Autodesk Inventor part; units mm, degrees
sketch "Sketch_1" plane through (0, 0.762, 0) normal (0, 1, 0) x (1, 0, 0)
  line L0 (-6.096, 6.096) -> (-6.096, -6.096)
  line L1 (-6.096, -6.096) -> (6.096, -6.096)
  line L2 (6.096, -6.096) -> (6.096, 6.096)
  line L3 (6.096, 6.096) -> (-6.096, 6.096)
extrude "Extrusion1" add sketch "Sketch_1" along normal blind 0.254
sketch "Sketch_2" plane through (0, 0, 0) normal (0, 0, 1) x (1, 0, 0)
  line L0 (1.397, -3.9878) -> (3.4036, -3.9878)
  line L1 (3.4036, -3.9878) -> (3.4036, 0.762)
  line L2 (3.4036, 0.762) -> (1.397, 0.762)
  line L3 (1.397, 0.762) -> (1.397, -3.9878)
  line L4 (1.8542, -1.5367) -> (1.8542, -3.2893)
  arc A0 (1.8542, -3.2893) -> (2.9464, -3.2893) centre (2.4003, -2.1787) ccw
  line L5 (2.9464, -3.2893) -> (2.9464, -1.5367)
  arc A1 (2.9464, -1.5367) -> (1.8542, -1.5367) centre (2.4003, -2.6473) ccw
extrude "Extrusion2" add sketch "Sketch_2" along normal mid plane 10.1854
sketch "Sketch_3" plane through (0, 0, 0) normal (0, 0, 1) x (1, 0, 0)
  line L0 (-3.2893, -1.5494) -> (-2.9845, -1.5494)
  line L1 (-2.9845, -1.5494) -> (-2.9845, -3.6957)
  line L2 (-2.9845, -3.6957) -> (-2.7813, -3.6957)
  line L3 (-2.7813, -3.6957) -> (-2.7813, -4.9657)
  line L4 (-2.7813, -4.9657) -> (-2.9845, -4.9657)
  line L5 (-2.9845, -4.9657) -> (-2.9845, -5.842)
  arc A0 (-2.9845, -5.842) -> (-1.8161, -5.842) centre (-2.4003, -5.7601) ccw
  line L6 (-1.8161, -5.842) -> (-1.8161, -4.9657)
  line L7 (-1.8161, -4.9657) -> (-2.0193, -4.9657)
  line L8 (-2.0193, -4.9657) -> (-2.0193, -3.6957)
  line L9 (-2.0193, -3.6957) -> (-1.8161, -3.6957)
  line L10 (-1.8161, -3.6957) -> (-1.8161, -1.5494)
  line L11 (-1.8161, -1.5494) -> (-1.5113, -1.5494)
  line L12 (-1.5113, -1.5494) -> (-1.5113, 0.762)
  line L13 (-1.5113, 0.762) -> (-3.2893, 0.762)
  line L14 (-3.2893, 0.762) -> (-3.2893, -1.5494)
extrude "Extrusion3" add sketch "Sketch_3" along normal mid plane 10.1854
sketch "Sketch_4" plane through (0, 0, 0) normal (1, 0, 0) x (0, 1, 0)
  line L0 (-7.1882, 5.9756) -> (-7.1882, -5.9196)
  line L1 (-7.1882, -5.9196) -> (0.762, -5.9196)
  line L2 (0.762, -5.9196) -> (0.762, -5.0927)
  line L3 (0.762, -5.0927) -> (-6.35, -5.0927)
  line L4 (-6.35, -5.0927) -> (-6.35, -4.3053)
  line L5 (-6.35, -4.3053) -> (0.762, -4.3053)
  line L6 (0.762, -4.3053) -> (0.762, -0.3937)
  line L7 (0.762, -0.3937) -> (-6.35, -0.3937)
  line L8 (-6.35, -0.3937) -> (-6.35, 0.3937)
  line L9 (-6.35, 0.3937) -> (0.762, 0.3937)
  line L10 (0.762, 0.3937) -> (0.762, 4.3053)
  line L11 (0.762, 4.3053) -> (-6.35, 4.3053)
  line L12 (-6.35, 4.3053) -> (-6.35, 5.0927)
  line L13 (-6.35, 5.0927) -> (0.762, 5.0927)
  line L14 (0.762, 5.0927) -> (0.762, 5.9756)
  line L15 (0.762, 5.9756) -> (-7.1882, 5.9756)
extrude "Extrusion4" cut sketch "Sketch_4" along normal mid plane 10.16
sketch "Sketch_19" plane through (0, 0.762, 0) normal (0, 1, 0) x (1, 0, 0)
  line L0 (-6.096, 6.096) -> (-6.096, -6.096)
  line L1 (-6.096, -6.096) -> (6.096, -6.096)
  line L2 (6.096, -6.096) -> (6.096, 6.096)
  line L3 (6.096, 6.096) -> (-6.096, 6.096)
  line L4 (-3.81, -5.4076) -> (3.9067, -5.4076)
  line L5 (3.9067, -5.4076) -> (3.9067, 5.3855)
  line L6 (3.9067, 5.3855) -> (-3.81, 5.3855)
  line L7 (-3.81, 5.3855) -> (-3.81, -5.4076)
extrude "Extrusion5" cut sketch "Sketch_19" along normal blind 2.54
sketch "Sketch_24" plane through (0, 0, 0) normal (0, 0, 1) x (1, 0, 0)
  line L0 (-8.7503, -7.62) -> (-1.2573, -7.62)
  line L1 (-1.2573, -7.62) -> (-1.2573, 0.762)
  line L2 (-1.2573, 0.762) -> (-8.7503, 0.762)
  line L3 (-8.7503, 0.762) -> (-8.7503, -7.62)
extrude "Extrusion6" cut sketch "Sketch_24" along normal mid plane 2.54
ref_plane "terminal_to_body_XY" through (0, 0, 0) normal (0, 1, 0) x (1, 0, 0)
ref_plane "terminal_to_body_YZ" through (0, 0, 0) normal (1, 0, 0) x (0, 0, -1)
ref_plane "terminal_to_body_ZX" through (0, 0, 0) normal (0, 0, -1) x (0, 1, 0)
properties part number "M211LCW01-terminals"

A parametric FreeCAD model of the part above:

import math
import FreeCAD as App
import Part
import Sketcher

V = App.Vector
Q = App.Units.Quantity


def add_polygon(sketch, points):
    """Adds a closed chain of lines whose ends are joined by coincident constraints."""
    first, n = sketch.GeometryCount, len(points)
    for a, b in zip(points, points[1:] + points[:1]):
        sketch.addGeometry(Part.LineSegment(App.Vector(*a, 0), App.Vector(*b, 0)), False)
    for i in range(n):
        sketch.addConstraint(Sketcher.Constraint("Coincident", first + i, 2, first + (i + 1) % n, 1))

doc = App.newDocument("Part")
body = doc.addObject("PartDesign::Body", "Body")

# Sketch on XZ plane
sketch1 = doc.addObject("Sketcher::SketchObject", "Sketch")
body.addObject(sketch1)
sketch1.AttachmentSupport = (doc.XZ_Plane, [""])
sketch1.MapMode = "FlatFace"
sketch1.AttachmentOffset = App.Placement(V(0, 0, -0.03 * 25.4), App.Rotation())
add_polygon(sketch1, [(6.096, -6.096), (-6.096, -6.096), (-6.096, 6.096), (6.096, 6.096)])  # lines 0-3
sketch1.addConstraint([
    Sketcher.Constraint("Horizontal", 0),
    Sketcher.Constraint("Vertical", 1),
    Sketcher.Constraint("Horizontal", 2),
    Sketcher.Constraint("Vertical", 3),
    Sketcher.Constraint("Symmetric", 0, 2, 2, 2, -1, 1),
    Sketcher.Constraint("Equal", 2, 1),
    Sketcher.Constraint("DistanceX", 0, 2, 0, 1, Q("0.48 in")),
])
pad1 = doc.addObject("PartDesign::Pad", "Pad")
body.addObject(pad1)
pad1.Profile = sketch1
pad1.Length = Q("0.01 in")
pad1.Reversed = True

# Sketch on XY plane
sketch2 = doc.addObject("Sketcher::SketchObject", "Sketch001")
body.addObject(sketch2)
sketch2.AttachmentSupport = (doc.XY_Plane, [""])
sketch2.MapMode = "FlatFace"
add_polygon(sketch2, [(1.397, 0.762), (1.397, -3.9878), (3.4036, -3.9878), (3.4036, 0.762)])  # lines 0-3
sketch2.addGeometry(Part.LineSegment(V(1.8542, -3.2893, 0), V(1.8542, -1.5367, 0)), False)  # 4
sketch2.addGeometry(Part.ArcOfCircle(Part.Circle(V(2.4003, -2.6473, 0), V(0, 0, 1), 1.237602), math.radians(63.815907), math.radians(116.184093)), False)  # 5
sketch2.addGeometry(Part.LineSegment(V(2.9464, -1.5367, 0), V(2.9464, -3.2893, 0)), False)  # 6
sketch2.addGeometry(Part.ArcOfCircle(Part.Circle(V(2.4003, -2.1787, 0), V(0, 0, 1), 1.237602), math.radians(-116.184093), math.radians(-63.815907)), False)  # 7
sketch2.addConstraint([
    Sketcher.Constraint("Coincident", 4, 2, 5, 2),
    Sketcher.Constraint("Coincident", 5, 1, 6, 1),
    Sketcher.Constraint("Coincident", 6, 2, 7, 2),
    Sketcher.Constraint("Coincident", 7, 1, 4, 1),
    Sketcher.Constraint("Vertical", 0),
    Sketcher.Constraint("Horizontal", 1),
    Sketcher.Constraint("Vertical", 2),
    Sketcher.Constraint("Horizontal", 3),
    Sketcher.Constraint("Vertical", 4),
    Sketcher.Constraint("Vertical", 6),
    Sketcher.Constraint("Equal", 5, 7),
    Sketcher.Constraint("Horizontal", 4, 2, 5, 1),
    Sketcher.Constraint("Horizontal", 6, 2, 7, 1),
    Sketcher.Constraint("DistanceX", 1, 1, 1, 2, Q("0.079 in")),
    Sketcher.Constraint("DistanceY", 0, 2, 0, 1, Q("0.187 in")),
    Sketcher.Constraint("DistanceY", 4, 1, 4, 2, Q("0.069 in")),
    Sketcher.Constraint("DistanceY", -1, 1, 2, 2, Q("0.03 in")),
    Sketcher.Constraint("Radius", 5, Q("1.2376 mm")),
    Sketcher.Constraint("DistanceX", -1, 1, 0, 2, Q("0.055 in")),
    Sketcher.Constraint("DistanceX", -1, 1, 4, 2, Q("0.073 in")),
    Sketcher.Constraint("DistanceX", -1, 1, 5, 1, Q("0.116 in")),
    Sketcher.Constraint("DistanceY", 4, 2, -1, 1, Q("0.0605 in")),
])
pad2 = doc.addObject("PartDesign::Pad", "Pad001")
body.addObject(pad2)
pad2.Profile = sketch2
pad2.Length = Q("0.401 in")
pad2.Midplane = True

# Sketch on XY plane
sketch3 = doc.addObject("Sketcher::SketchObject", "Sketch002")
body.addObject(sketch3)
sketch3.AttachmentSupport = (doc.XY_Plane, [""])
sketch3.MapMode = "FlatFace"
sketch3.addGeometry([
    Part.LineSegment(V(-3.2893, 0.762, 0), V(-3.2893, -1.5494, 0)),  # 0
    Part.LineSegment(V(-3.2893, -1.5494, 0), V(-2.9845, -1.5494, 0)),  # 1
    Part.LineSegment(V(-2.9845, -1.5494, 0), V(-2.9845, -3.6957, 0)),  # 2
    Part.LineSegment(V(-2.9845, -3.6957, 0), V(-2.7813, -3.6957, 0)),  # 3
    Part.LineSegment(V(-2.7813, -3.6957, 0), V(-2.7813, -4.9657, 0)),  # 4
    Part.LineSegment(V(-2.7813, -4.9657, 0), V(-2.9845, -4.9657, 0)),  # 5
    Part.LineSegment(V(-2.9845, -4.9657, 0), V(-2.9845, -5.842, 0)),  # 6
    Part.ArcOfCircle(Part.Circle(V(-2.4003, -5.7601, 0), V(0, 0, 1), 0.589913), math.radians(-172.019617), math.radians(-7.980383)),  # 7
    Part.LineSegment(V(-1.8161, -5.842, 0), V(-1.8161, -4.9657, 0)),  # 8
    Part.LineSegment(V(-1.8161, -4.9657, 0), V(-2.0193, -4.9657, 0)),  # 9
    Part.LineSegment(V(-2.0193, -4.9657, 0), V(-2.0193, -3.6957, 0)),  # 10
    Part.LineSegment(V(-2.0193, -3.6957, 0), V(-1.8161, -3.6957, 0)),  # 11
    Part.LineSegment(V(-1.8161, -3.6957, 0), V(-1.8161, -1.5494, 0)),  # 12
    Part.LineSegment(V(-1.8161, -1.5494, 0), V(-1.5113, -1.5494, 0)),  # 13
    Part.LineSegment(V(-1.5113, -1.5494, 0), V(-1.5113, 0.762, 0)),  # 14
    Part.LineSegment(V(-1.5113, 0.762, 0), V(-3.2893, 0.762, 0)),  # 15
], False)
sketch3.addConstraint([
    Sketcher.Constraint("Coincident", 0, 2, 1, 1),
    Sketcher.Constraint("Coincident", 1, 2, 2, 1),
    Sketcher.Constraint("Coincident", 2, 2, 3, 1),
    Sketcher.Constraint("Coincident", 3, 2, 4, 1),
    Sketcher.Constraint("Coincident", 4, 2, 5, 1),
    Sketcher.Constraint("Coincident", 5, 2, 6, 1),
    Sketcher.Constraint("Coincident", 6, 2, 7, 1),
    Sketcher.Constraint("Coincident", 7, 2, 8, 1),
    Sketcher.Constraint("Coincident", 8, 2, 9, 1),
    Sketcher.Constraint("Coincident", 9, 2, 10, 1),
    Sketcher.Constraint("Coincident", 10, 2, 11, 1),
    Sketcher.Constraint("Coincident", 11, 2, 12, 1),
    Sketcher.Constraint("Coincident", 12, 2, 13, 1),
    Sketcher.Constraint("Coincident", 13, 2, 14, 1),
    Sketcher.Constraint("Coincident", 14, 2, 15, 1),
    Sketcher.Constraint("Coincident", 15, 2, 0, 1),
    Sketcher.Constraint("Vertical", 0),
    Sketcher.Constraint("Horizontal", 1),
    Sketcher.Constraint("Vertical", 2),
    Sketcher.Constraint("Horizontal", 3),
    Sketcher.Constraint("Vertical", 4),
    Sketcher.Constraint("Horizontal", 5),
    Sketcher.Constraint("Vertical", 6),
    Sketcher.Constraint("Vertical", 8),
    Sketcher.Constraint("Horizontal", 9),
    Sketcher.Constraint("Vertical", 10),
    Sketcher.Constraint("Horizontal", 11),
    Sketcher.Constraint("Vertical", 12),
    Sketcher.Constraint("Horizontal", 13),
    Sketcher.Constraint("Vertical", 14),
    Sketcher.Constraint("Horizontal", 15),
    Sketcher.Constraint("Horizontal", 6, 2, 7, 2),
    Sketcher.Constraint("Horizontal", 5, 2, 8, 2),
    Sketcher.Constraint("Horizontal", 3, 2, 10, 2),
    Sketcher.Constraint("Horizontal", 1, 2, 12, 2),
    Sketcher.Constraint("Vertical", 2, 2, 5, 2),
    Sketcher.Constraint("Vertical", 8, 2, 11, 2),
    Sketcher.Constraint("Equal", 5, 9),
    Sketcher.Constraint("Equal", 1, 13),
    Sketcher.Constraint("DistanceX", 15, 2, 15, 1, Q("0.07 in")),
    Sketcher.Constraint("DistanceY", 4, 2, 4, 1, Q("0.05 in")),
    Sketcher.Constraint("DistanceX", 1, 1, 1, 2, Q("0.012 in")),
    Sketcher.Constraint("DistanceX", 3, 1, 3, 2, Q("0.008 in")),
    Sketcher.Constraint("DistanceY", 0, 2, 0, 1, Q("0.091 in")),
    Sketcher.Constraint("DistanceY", 6, 2, -1, 1, Q("0.23 in")),
    Sketcher.Constraint("DistanceY", -1, 1, 14, 2, Q("0.03 in")),
    Sketcher.Constraint("Radius", 7, Q("0.59 mm")),
    Sketcher.Constraint("DistanceY", 2, 2, 2, 1, Q("0.0845 in")),
    Sketcher.Constraint("DistanceX", 7, 3, -1, 1, Q("0.0945 in")),
])
pad3 = doc.addObject("PartDesign::Pad", "Pad002")
body.addObject(pad3)
pad3.Profile = sketch3
pad3.Length = Q("0.401 in")
pad3.Midplane = True

# Sketch on YZ plane
sketch4 = doc.addObject("Sketcher::SketchObject", "Sketch003")
body.addObject(sketch4)
sketch4.AttachmentSupport = (doc.YZ_Plane, [""])
sketch4.MapMode = "FlatFace"
add_polygon(sketch4, [(0.762, 5.9756), (-7.1882, 5.9756), (-7.1882, -5.9196), (0.762, -5.9196), (0.762, -5.0927), (-6.35, -5.0927), (-6.35, -4.3053), (0.762, -4.3053), (0.762, -0.3937), (-6.35, -0.3937), (-6.35, 0.3937), (0.762, 0.3937), (0.762, 4.3053), (-6.35, 4.3053), (-6.35, 5.0927), (0.762, 5.0927)])  # lines 0-15
sketch4.addConstraint([
    Sketcher.Constraint("Horizontal", 0),
    Sketcher.Constraint("Vertical", 1),
    Sketcher.Constraint("Horizontal", 2),
    Sketcher.Constraint("Vertical", 3),
    Sketcher.Constraint("Horizontal", 4),
    Sketcher.Constraint("Vertical", 5),
    Sketcher.Constraint("Horizontal", 6),
    Sketcher.Constraint("Vertical", 7),
    Sketcher.Constraint("Horizontal", 8),
    Sketcher.Constraint("Vertical", 9),
    Sketcher.Constraint("Horizontal", 10),
    Sketcher.Constraint("Vertical", 11),
    Sketcher.Constraint("Horizontal", 12),
    Sketcher.Constraint("Vertical", 13),
    Sketcher.Constraint("Horizontal", 14),
    Sketcher.Constraint("Vertical", 15),
    Sketcher.Constraint("Symmetric", 7, 2, 10, 2, -1),
    Sketcher.Constraint("Symmetric", 5, 2, 12, 2, -1),
    Sketcher.Constraint("Symmetric", 3, 2, 14, 2, -1),
    Sketcher.Constraint("Vertical", 3, 2, 6, 2),
    Sketcher.Constraint("Vertical", 5, 2, 8, 2),
    Sketcher.Constraint("Equal", 5, 9),
    Sketcher.Constraint("DistanceX", 4, 2, 4, 1, Q("0.28 in")),
    Sketcher.Constraint("DistanceX", 0, 2, 0, 1, Q("0.313 in")),
    Sketcher.Constraint("DistanceY", 5, 1, 5, 2, Q("0.031 in")),
    Sketcher.Constraint("DistanceY", 7, 1, 7, 2, Q("0.154 in")),
    Sketcher.Constraint("DistanceX", -1, 1, 2, 2, Q("0.03 in")),
    Sketcher.Constraint("DistanceY", 1, 2, 1, 1, Q("11.8952 mm")),
    Sketcher.Constraint("DistanceY", 3, 1, 3, 2, Q("0.827 mm")),
])
pocket1 = doc.addObject("PartDesign::Pocket", "Pocket")
body.addObject(pocket1)
pocket1.Profile = sketch4
pocket1.Length = Q("0.4 in")
pocket1.Midplane = True

# Sketch on XZ plane
sketch5 = doc.addObject("Sketcher::SketchObject", "Sketch004")
body.addObject(sketch5)
sketch5.AttachmentSupport = (doc.XZ_Plane, [""])
sketch5.MapMode = "FlatFace"
sketch5.AttachmentOffset = App.Placement(V(0, 0, -0.03 * 25.4), App.Rotation())
add_polygon(sketch5, [(6.096, -6.096), (-6.096, -6.096), (-6.096, 6.096), (6.096, 6.096)])  # lines 0-3
add_polygon(sketch5, [(3.9067, 5.4076), (-3.81, 5.4076), (-3.81, -5.3855), (3.9067, -5.3855)])  # lines 4-7
sketch5.addConstraint([
    Sketcher.Constraint("Horizontal", 0),
    Sketcher.Constraint("Vertical", 1),
    Sketcher.Constraint("Horizontal", 2),
    Sketcher.Constraint("Vertical", 3),
    Sketcher.Constraint("Horizontal", 4),
    Sketcher.Constraint("Vertical", 5),
    Sketcher.Constraint("Horizontal", 6),
    Sketcher.Constraint("Vertical", 7),
    Sketcher.Constraint("Symmetric", 0, 2, 2, 2, -1, 1),
    Sketcher.Constraint("Equal", 2, 1),
    Sketcher.Constraint("DistanceX", 0, 2, 0, 1, Q("0.48 in")),
    Sketcher.Constraint("DistanceX", 4, 2, -1, 1, Q("0.15 in")),
    Sketcher.Constraint("DistanceX", 4, 2, 4, 1, Q("0.3038 in")),
    Sketcher.Constraint("DistanceY", 5, 2, 5, 1, Q("10.793 mm")),
    Sketcher.Constraint("DistanceY", -1, 1, 4, 2, Q("0.2129 in")),
])
pocket2 = doc.addObject("PartDesign::Pocket", "Pocket001")
body.addObject(pocket2)
pocket2.Profile = sketch5
pocket2.Length = Q("0.1 in")

# Sketch on XY plane
sketch6 = doc.addObject("Sketcher::SketchObject", "Sketch005")
body.addObject(sketch6)
sketch6.AttachmentSupport = (doc.XY_Plane, [""])
sketch6.MapMode = "FlatFace"
add_polygon(sketch6, [(-8.7503, 0.762), (-8.7503, -7.62), (-1.2573, -7.62), (-1.2573, 0.762)])  # lines 0-3
sketch6.addConstraint([
    Sketcher.Constraint("Vertical", 0),
    Sketcher.Constraint("Horizontal", 1),
    Sketcher.Constraint("Vertical", 2),
    Sketcher.Constraint("Horizontal", 3),
    Sketcher.Constraint("DistanceY", 0, 2, 0, 1, Q("0.33 in")),
    Sketcher.Constraint("DistanceY", 0, 2, -1, 1, Q("0.3 in")),
    Sketcher.Constraint("DistanceX", 1, 1, 1, 2, Q("0.295 in")),
    Sketcher.Constraint("DistanceX", 0, 2, -1, 1, Q("0.3445 in")),
])
pocket3 = doc.addObject("PartDesign::Pocket", "Pocket002")
body.addObject(pocket3)
pocket3.Profile = sketch6
pocket3.Length = Q("0.1 in")
pocket3.Midplane = True

doc.recompute()
